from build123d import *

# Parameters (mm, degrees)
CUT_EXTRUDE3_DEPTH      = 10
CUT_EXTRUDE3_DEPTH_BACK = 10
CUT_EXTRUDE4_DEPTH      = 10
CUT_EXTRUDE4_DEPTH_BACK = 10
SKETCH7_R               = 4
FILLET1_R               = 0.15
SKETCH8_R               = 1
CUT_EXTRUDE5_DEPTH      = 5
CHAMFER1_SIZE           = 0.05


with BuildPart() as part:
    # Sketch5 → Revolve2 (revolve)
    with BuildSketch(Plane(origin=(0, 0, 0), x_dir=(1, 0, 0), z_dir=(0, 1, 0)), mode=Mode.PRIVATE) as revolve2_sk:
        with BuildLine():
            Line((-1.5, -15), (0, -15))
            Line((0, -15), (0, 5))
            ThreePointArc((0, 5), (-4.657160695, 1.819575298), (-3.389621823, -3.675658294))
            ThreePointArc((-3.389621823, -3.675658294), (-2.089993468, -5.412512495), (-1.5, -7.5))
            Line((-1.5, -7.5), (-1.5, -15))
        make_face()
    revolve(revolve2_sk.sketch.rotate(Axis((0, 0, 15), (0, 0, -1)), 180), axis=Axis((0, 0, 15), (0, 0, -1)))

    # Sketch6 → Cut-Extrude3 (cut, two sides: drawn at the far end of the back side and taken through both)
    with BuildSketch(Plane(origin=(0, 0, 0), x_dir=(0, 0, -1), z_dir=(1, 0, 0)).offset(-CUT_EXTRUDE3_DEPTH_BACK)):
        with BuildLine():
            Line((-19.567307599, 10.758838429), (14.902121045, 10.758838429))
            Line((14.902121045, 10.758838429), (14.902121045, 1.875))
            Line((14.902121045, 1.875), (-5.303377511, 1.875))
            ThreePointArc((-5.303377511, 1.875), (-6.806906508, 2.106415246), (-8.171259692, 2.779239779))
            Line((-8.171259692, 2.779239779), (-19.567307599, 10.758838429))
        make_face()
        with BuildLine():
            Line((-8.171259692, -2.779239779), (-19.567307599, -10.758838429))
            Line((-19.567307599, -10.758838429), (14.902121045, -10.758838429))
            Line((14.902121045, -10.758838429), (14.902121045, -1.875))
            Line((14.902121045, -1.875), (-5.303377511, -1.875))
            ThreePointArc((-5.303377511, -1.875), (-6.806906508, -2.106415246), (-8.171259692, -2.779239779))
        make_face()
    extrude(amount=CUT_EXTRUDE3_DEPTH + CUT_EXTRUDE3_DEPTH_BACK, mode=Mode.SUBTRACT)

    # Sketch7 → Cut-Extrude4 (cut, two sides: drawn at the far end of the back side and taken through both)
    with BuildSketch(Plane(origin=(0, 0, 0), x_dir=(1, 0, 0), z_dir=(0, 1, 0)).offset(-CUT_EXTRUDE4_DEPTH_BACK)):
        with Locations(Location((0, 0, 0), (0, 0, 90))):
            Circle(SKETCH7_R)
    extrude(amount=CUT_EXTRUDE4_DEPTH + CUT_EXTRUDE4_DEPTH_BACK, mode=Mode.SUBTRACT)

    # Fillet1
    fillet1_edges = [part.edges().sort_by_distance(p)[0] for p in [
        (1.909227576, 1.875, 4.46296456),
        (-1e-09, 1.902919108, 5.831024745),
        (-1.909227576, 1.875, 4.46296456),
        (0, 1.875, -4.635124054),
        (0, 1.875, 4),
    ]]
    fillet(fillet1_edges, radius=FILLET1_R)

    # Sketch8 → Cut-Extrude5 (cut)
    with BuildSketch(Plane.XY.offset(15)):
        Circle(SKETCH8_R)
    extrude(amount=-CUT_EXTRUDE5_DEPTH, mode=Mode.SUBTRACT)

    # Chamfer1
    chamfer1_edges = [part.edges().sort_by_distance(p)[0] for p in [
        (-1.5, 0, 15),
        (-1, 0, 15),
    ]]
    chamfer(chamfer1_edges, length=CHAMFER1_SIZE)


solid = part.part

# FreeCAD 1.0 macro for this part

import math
import FreeCAD as App
import Part
import Sketcher

V = App.Vector
Q = App.Units.Quantity


def edges_at(feature, points):
    """Names of the edges that pass closest to the given points."""
    edges = feature.Shape.Edges
    near = lambda p: min(range(len(edges)), key=lambda i: edges[i].distToShape(Part.Vertex(*p))[0])
    return sorted({f"Edge{near(p) + 1}" for p in points})

doc = App.newDocument("Part")
body = doc.addObject("PartDesign::Body", "Body")

# Sketch on XZ plane
sketch1 = body.newObject("Sketcher::SketchObject", "Sketch")
sketch1.AttachmentSupport = (doc.getObject("XZ_Plane"), [""])
sketch1.MapMode = "FlatFace"
sketch1.addGeometry(Part.LineSegment(V(-1.5, 15, 0), V(0, 15, 0)), False)
sketch1.addGeometry(Part.LineSegment(V(0, 15, 0), V(0, -5, 0)), False)
sketch1.addGeometry(Part.ArcOfCircle(Part.Circle(V(0, 0, 0), V(0, 0, 1), 5), math.radians(133), math.radians(270)), False)
sketch1.addGeometry(Part.ArcOfCircle(Part.Circle(V(-7.4, 8, 0), V(0, 0, 1), 5.9), math.radians(-47), math.radians(-5)), False)
sketch1.addGeometry(Part.LineSegment(V(-1.5, 7.5, 0), V(-1.5, 15, 0)), False)
sketch1.addConstraint(Sketcher.Constraint("Coincident", 0, 2, 1, 1))
sketch1.addConstraint(Sketcher.Constraint("Coincident", 1, 2, 2, 2))
sketch1.addConstraint(Sketcher.Constraint("Tangent", 2, 1, 3, 1))
sketch1.addConstraint(Sketcher.Constraint("Coincident", 3, 2, 4, 1))
sketch1.addConstraint(Sketcher.Constraint("Coincident", 4, 2, 0, 1))
sketch1.addConstraint(Sketcher.Constraint("Horizontal", 0))
sketch1.addConstraint(Sketcher.Constraint("Vertical", 1))
sketch1.addConstraint(Sketcher.Constraint("Vertical", 4))
sketch1.addConstraint(Sketcher.Constraint("Coincident", 2, 3, -1, 1))
sketch1.addConstraint(Sketcher.Constraint("PointOnObject", 0, 2, -2))
sketch1.addConstraint(Sketcher.Constraint("Radius", 2, 5.0))
sketch1.addConstraint(Sketcher.Constraint("DistanceY", 1, 2, 1, 1, 20.0))
sketch1.addConstraint(Sketcher.Constraint("DistanceX", 0, 1, 0, 2, 1.5))
sketch1.addConstraint(Sketcher.Constraint("DistanceY", 4, 1, 4, 2, 7.5))
sketch1.addConstraint(Sketcher.Constraint("Radius", 3, 5.945037))
revolution = body.newObject("PartDesign::Revolution", "Revolution")
revolution.Profile = sketch1
revolution.ReferenceAxis = (sketch1, ["V_Axis"])
revolution.Angle = 360

# Sketch on YZ plane
sketch2 = body.newObject("Sketcher::SketchObject", "Sketch001")
sketch2.AttachmentSupport = (doc.getObject("YZ_Plane"), [""])
sketch2.MapMode = "FlatFace"
sketch2.addGeometry(Part.LineSegment(V(10.8, -14.9, 0), V(10.8, 19.6, 0)), False)
sketch2.addGeometry(Part.LineSegment(V(10.8, 19.6, 0), V(2.8, 8.2, 0)), False)
sketch2.addGeometry(Part.ArcOfCircle(Part.Circle(V(6.9, 5.3, 0), V(0, 0, 1), 5), math.radians(145), math.radians(180)), False)
sketch2.addGeometry(Part.LineSegment(V(1.9, 5.3, 0), V(1.9, -14.9, 0)), False)
sketch2.addGeometry(Part.LineSegment(V(1.9, -14.9, 0), V(10.8, -14.9, 0)), False)
sketch2.addGeometry(Part.LineSegment(V(-2.8, 8.2, 0), V(-10.8, 19.6, 0)), False)
sketch2.addGeometry(Part.LineSegment(V(-10.8, 19.6, 0), V(-10.8, -14.9, 0)), False)
sketch2.addGeometry(Part.LineSegment(V(-10.8, -14.9, 0), V(-1.9, -14.9, 0)), False)
sketch2.addGeometry(Part.LineSegment(V(-1.9, -14.9, 0), V(-1.9, 5.3, 0)), False)
sketch2.addGeometry(Part.ArcOfCircle(Part.Circle(V(-6.9, 5.3, 0), V(0, 0, 1), 5), math.radians(0), math.radians(35)), False)
sketch2.addConstraint(Sketcher.Constraint("Coincident", 0, 2, 1, 1))
sketch2.addConstraint(Sketcher.Constraint("Tangent", 1, 2, 2, 1))
sketch2.addConstraint(Sketcher.Constraint("Tangent", 2, 2, 3, 1))
sketch2.addConstraint(Sketcher.Constraint("Coincident", 3, 2, 4, 1))
sketch2.addConstraint(Sketcher.Constraint("Coincident", 4, 2, 0, 1))
sketch2.addConstraint(Sketcher.Constraint("Coincident", 5, 2, 6, 1))
sketch2.addConstraint(Sketcher.Constraint("Coincident", 6, 2, 7, 1))
sketch2.addConstraint(Sketcher.Constraint("Coincident", 7, 2, 8, 1))
sketch2.addConstraint(Sketcher.Constraint("Tangent", 8, 2, 9, 1))
sketch2.addConstraint(Sketcher.Constraint("Tangent", 9, 2, 5, 1))
sketch2.addConstraint(Sketcher.Constraint("Vertical", 0))
sketch2.addConstraint(Sketcher.Constraint("Vertical", 3))
sketch2.addConstraint(Sketcher.Constraint("Horizontal", 4))
sketch2.addConstraint(Sketcher.Constraint("Vertical", 6))
sketch2.addConstraint(Sketcher.Constraint("Horizontal", 7))
sketch2.addConstraint(Sketcher.Constraint("Vertical", 8))
sketch2.addConstraint(Sketcher.Constraint("Equal", 2, 9))
sketch2.addConstraint(Sketcher.Constraint("Symmetric", 2, 3, 9, 3, -2))
sketch2.addConstraint(Sketcher.Constraint("Symmetric", 0, 2, 5, 2, -2))
sketch2.addConstraint(Sketcher.Constraint("Horizontal", 4, 2, 6, 2))
sketch2.addConstraint(Sketcher.Constraint("Radius", 2, 5.0))
sketch2.addConstraint(Sketcher.Constraint("Angle", 1, Q("-125 deg")))
sketch2.addConstraint(Sketcher.Constraint("DistanceX", 9, 3, 2, 3, 13.75))
sketch2.addConstraint(Sketcher.Constraint("DistanceY", 3, 2, 3, 1, 20.205499))
sketch2.addConstraint(Sketcher.Constraint("DistanceX", 4, 1, 4, 2, 8.883838))
sketch2.addConstraint(Sketcher.Constraint("DistanceY", -1, 1, 1, 2, 8.17126))
pocket1 = body.newObject("PartDesign::Pocket", "Pocket")
pocket1.Profile = sketch2
pocket1.Type = "ThroughAll"
pocket1.Midplane = True

# Sketch on XZ plane
sketch3 = body.newObject("Sketcher::SketchObject", "Sketch002")
sketch3.AttachmentSupport = (doc.getObject("XZ_Plane"), [""])
sketch3.MapMode = "FlatFace"
sketch3.addGeometry(Part.Circle(V(0, 0, 0), V(0, 0, 1), 4), False)
sketch3.addConstraint(Sketcher.Constraint("Coincident", 0, 3, -1, 1))
sketch3.addConstraint(Sketcher.Constraint("Diameter", 0, 8.0))
pocket2 = body.newObject("PartDesign::Pocket", "Pocket001")
pocket2.Profile = sketch3
pocket2.Type = "ThroughAll"
pocket2.Midplane = True
doc.recompute()

fillet = body.newObject("PartDesign::Fillet", "Fillet")
fillet.Base = (pocket2, edges_at(pocket2, [
    (1.909, 1.875, 4.463),
    (0, 1.903, 5.831),
    (-1.909, 1.875, 4.463),
    (0, 1.875, -4.635),
    (0, 1.875, 4),
]))
fillet.Radius = 0.15

# Sketch on XY plane
sketch4 = body.newObject("Sketcher::SketchObject", "Sketch003")
sketch4.AttachmentSupport = (doc.getObject("XY_Plane"), [""])
sketch4.MapMode = "FlatFace"
sketch4.AttachmentOffset = App.Placement(V(0, 0, 15), App.Rotation())
sketch4.addGeometry(Part.Circle(V(0, 0, 0), V(0, 0, 1), 1), False)
sketch4.addConstraint(Sketcher.Constraint("Coincident", 0, 3, -1, 1))
sketch4.addConstraint(Sketcher.Constraint("Diameter", 0, 2.0))
pocket3 = body.newObject("PartDesign::Pocket", "Pocket002")
pocket3.Profile = sketch4
pocket3.Length = 5
doc.recompute()

chamfer = body.newObject("PartDesign::Chamfer", "Chamfer")
chamfer.Base = (pocket3, edges_at(pocket3, [(-1.5, 0, 15), (-1, 0, 15)]))
chamfer.Size = 0.05

doc.recompute()
